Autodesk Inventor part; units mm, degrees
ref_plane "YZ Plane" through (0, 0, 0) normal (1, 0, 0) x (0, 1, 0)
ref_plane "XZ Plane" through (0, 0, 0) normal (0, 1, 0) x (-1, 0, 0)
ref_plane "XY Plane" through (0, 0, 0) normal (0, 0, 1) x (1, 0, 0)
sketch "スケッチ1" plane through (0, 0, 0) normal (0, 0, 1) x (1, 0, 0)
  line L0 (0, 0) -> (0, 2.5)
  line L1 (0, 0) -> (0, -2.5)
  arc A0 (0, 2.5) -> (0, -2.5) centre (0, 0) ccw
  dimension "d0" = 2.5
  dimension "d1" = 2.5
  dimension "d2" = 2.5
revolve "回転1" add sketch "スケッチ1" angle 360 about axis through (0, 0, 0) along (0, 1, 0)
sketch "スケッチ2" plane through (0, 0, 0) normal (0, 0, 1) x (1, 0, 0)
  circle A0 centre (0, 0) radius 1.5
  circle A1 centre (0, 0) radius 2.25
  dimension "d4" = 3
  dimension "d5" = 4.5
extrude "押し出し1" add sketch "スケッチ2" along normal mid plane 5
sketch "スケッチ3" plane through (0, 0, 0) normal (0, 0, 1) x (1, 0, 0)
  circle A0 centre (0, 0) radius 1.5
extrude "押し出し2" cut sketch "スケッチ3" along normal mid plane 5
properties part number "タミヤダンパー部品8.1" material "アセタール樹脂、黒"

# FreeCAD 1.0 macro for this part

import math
import FreeCAD as App
import Part
import Sketcher
from FreeCAD import Vector
Q = App.Units.Quantity

doc = App.newDocument("Part")
body = doc.addObject("PartDesign::Body", "Body")

sketch1 = doc.addObject("Sketcher::SketchObject", "Sketch")
body.addObject(sketch1)
sketch1.AttachmentSupport = (doc.XY_Plane, [""])
sketch1.MapMode = "FlatFace"
sketch1.addGeometry([
    Part.LineSegment(Vector(0, -2.5, 0), Vector(0, 2.5, 0)),
    Part.ArcOfCircle(Part.Circle(Vector(0, 0, 0), Vector(0, 0, 1), 2.5), math.radians(90), math.radians(270)),
], False)
sketch1.addConstraint([
    Sketcher.Constraint("Coincident", 0, 1, 1, 2),
    Sketcher.Constraint("Coincident", 1, 1, 0, 2),
    Sketcher.Constraint("Vertical", 0),
    Sketcher.Constraint("Coincident", 1, 3, -1, 1),
    Sketcher.Constraint("PointOnObject", 0, 1, -2),
    Sketcher.Constraint("Radius", 1, Q("2.5 mm")),
])
revolution = doc.addObject("PartDesign::Revolution", "Revolution")
body.addObject(revolution)
revolution.Profile = sketch1
revolution.ReferenceAxis = (sketch1, ["V_Axis"])
revolution.Angle = 360

sketch2 = doc.addObject("Sketcher::SketchObject", "Sketch001")
body.addObject(sketch2)
sketch2.AttachmentSupport = (doc.XY_Plane, [""])
sketch2.MapMode = "FlatFace"
sketch2.addGeometry([
    Part.Circle(Vector(0, 0, 0), Vector(0, 0, 1), 2.2),
    Part.Circle(Vector(0, 0, 0), Vector(0, 0, 1), 1.5),
], False)
sketch2.addConstraint([
    Sketcher.Constraint("Coincident", 0, 3, -1, 1),
    Sketcher.Constraint("Coincident", 1, 3, -1, 1),
    Sketcher.Constraint("Diameter", 1, Q("3 mm")),
    Sketcher.Constraint("Diameter", 0, Q("4.5 mm")),
])
pad1 = doc.addObject("PartDesign::Pad", "Pad")
body.addObject(pad1)
pad1.Profile = sketch2
pad1.Length = 5
pad1.Midplane = True

sketch3 = doc.addObject("Sketcher::SketchObject", "Sketch002")
body.addObject(sketch3)
sketch3.AttachmentSupport = (doc.XY_Plane, [""])
sketch3.MapMode = "FlatFace"
sketch3.addGeometry(Part.Circle(Vector(0, 0, 0), Vector(0, 0, 1), 1.5), False)
sketch3.addConstraint([
    Sketcher.Constraint("Coincident", 0, 3, -1, 1),
    Sketcher.Constraint("Diameter", 0, Q("3 mm")),
])
pocket1 = doc.addObject("PartDesign::Pocket", "Pocket")
body.addObject(pocket1)
pocket1.Profile = sketch3
pocket1.Length = 5
pocket1.Midplane = True

doc.recompute()
